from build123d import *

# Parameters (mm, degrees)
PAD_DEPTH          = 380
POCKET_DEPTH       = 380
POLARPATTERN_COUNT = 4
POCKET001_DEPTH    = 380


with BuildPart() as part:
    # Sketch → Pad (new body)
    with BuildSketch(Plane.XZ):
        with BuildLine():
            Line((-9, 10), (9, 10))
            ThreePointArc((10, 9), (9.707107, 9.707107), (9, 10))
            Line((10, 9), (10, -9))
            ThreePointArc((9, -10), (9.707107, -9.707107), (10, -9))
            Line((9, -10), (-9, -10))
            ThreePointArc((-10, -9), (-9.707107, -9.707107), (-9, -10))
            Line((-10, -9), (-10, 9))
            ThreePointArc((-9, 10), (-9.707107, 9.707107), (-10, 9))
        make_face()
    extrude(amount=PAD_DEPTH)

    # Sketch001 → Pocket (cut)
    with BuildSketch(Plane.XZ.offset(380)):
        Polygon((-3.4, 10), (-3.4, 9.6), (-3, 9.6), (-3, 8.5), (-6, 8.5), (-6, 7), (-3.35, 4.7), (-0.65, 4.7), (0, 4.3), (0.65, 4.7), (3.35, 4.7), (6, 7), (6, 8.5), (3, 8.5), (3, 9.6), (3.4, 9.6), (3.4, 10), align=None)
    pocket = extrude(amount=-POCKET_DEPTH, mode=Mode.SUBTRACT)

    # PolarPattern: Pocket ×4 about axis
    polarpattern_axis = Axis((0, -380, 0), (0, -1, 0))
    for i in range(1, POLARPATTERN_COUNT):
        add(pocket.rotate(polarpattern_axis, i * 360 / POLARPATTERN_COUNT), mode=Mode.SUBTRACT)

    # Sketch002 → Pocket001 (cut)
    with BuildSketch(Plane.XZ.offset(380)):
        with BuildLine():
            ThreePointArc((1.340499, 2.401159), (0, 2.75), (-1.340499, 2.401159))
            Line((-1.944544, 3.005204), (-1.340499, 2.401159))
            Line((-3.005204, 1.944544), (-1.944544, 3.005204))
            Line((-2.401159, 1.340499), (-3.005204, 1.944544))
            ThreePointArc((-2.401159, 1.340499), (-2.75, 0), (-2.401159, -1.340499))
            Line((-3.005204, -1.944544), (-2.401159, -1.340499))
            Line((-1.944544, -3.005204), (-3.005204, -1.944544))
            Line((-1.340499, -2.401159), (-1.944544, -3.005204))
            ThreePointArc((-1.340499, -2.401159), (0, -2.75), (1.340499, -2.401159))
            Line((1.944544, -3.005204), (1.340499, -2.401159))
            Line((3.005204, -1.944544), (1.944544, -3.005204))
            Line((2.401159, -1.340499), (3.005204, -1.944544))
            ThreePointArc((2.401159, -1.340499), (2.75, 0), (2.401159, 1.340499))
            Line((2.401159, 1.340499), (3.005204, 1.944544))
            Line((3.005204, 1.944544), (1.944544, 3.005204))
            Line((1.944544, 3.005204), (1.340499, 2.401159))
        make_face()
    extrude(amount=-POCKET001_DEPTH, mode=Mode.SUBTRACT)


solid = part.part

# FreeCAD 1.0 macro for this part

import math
import FreeCAD as App
import Part
import Sketcher

V = App.Vector

doc = App.newDocument("Part")
body = doc.addObject("PartDesign::Body", "Body")

sketch1 = doc.addObject("Sketcher::SketchObject", "Sketch")
body.addObject(sketch1)
sketch1.AttachmentSupport = (doc.XZ_Plane, [""])
sketch1.MapMode = "FlatFace"
sketch1.addGeometry([
    Part.LineSegment(V(9, 10, 0), V(-9, 10, 0)),
    Part.ArcOfCircle(Part.Circle(V(-9.000001, 9.000001, 0), V(0, 0, 1), 0.999999), math.radians(89.999957), math.radians(180.000043)),
    Part.LineSegment(V(-10, 9, 0), V(-10, -9, 0)),
    Part.ArcOfCircle(Part.Circle(V(-9.000001, -9.000001, 0), V(0, 0, 1), 0.999999), math.radians(179.999957), math.radians(270.000043)),
    Part.LineSegment(V(-9, -10, 0), V(9, -10, 0)),
    Part.ArcOfCircle(Part.Circle(V(9.000001, -9.000001, 0), V(0, 0, 1), 0.999999), math.radians(-90.000043), math.radians(0.000043)),
    Part.LineSegment(V(10, -9, 0), V(10, 9, 0)),
    Part.ArcOfCircle(Part.Circle(V(9.000001, 9.000001, 0), V(0, 0, 1), 0.999999), math.radians(-0.000043), math.radians(90.000043)),
], False)
sketch1.addConstraint([
    Sketcher.Constraint("Tangent", 0, 2, 1, 1),
    Sketcher.Constraint("Tangent", 1, 2, 2, 1),
    Sketcher.Constraint("Tangent", 2, 2, 3, 1),
    Sketcher.Constraint("Tangent", 3, 2, 4, 1),
    Sketcher.Constraint("Tangent", 4, 2, 5, 1),
    Sketcher.Constraint("Tangent", 5, 2, 6, 1),
    Sketcher.Constraint("Tangent", 6, 2, 7, 1),
    Sketcher.Constraint("Tangent", 7, 2, 0, 1),
    Sketcher.Constraint("Horizontal", 0),
    Sketcher.Constraint("Vertical", 2),
    Sketcher.Constraint("Horizontal", 4),
    Sketcher.Constraint("Vertical", 6),
    Sketcher.Constraint("Equal", 1, 3),
    Sketcher.Constraint("Equal", 3, 5),
    Sketcher.Constraint("Equal", 5, 7),
    Sketcher.Constraint("Symmetric", 1, 3, 5, 3, -1, 1),
    Sketcher.Constraint("Equal", 4, 2),
    Sketcher.Constraint("Radius", 1, 0.999999),
    Sketcher.Constraint("DistanceX", 0, 2, 0, 1, 18.0),
])
pad1 = doc.addObject("PartDesign::Pad", "Pad")
body.addObject(pad1)
pad1.Profile = sketch1
pad1.Length = 380

sketch2 = doc.addObject("Sketcher::SketchObject", "Sketch001")
body.addObject(sketch2)
sketch2.AttachmentSupport = (doc.XZ_Plane, [""])
sketch2.MapMode = "FlatFace"
sketch2.AttachmentOffset = App.Placement(V(0, 0, 380), App.Rotation())
sketch2.addGeometry([
    Part.LineSegment(V(-3.4, 10, 0), V(-3.4, 9.6, 0)),
    Part.LineSegment(V(-3.4, 9.6, 0), V(-3, 9.6, 0)),
    Part.LineSegment(V(-3, 9.6, 0), V(-3, 8.5, 0)),
    Part.LineSegment(V(-3, 8.5, 0), V(-6, 8.5, 0)),
    Part.LineSegment(V(-6, 8.5, 0), V(-6, 7, 0)),
    Part.LineSegment(V(-6, 7, 0), V(-3.35, 4.7, 0)),
    Part.LineSegment(V(-3.35, 4.7, 0), V(-0.65, 4.7, 0)),
    Part.LineSegment(V(-0.65, 4.7, 0), V(0, 4.3, 0)),
    Part.LineSegment(V(0, 4.3, 0), V(0.65, 4.7, 0)),
    Part.LineSegment(V(0.65, 4.7, 0), V(3.35, 4.7, 0)),
    Part.LineSegment(V(3.35, 4.7, 0), V(6, 7, 0)),
    Part.LineSegment(V(6, 7, 0), V(6, 8.5, 0)),
    Part.LineSegment(V(6, 8.5, 0), V(3, 8.5, 0)),
    Part.LineSegment(V(3, 8.5, 0), V(3, 9.6, 0)),
    Part.LineSegment(V(3, 9.6, 0), V(3.4, 9.6, 0)),
    Part.LineSegment(V(3.4, 9.6, 0), V(3.4, 10, 0)),
    Part.LineSegment(V(3.4, 10, 0), V(-3.4, 10, 0)),
], False)
sketch2.addConstraint([
    Sketcher.Constraint("Coincident", 0, 2, 1, 1),
    Sketcher.Constraint("Coincident", 1, 2, 2, 1),
    Sketcher.Constraint("Coincident", 2, 2, 3, 1),
    Sketcher.Constraint("Coincident", 3, 2, 4, 1),
    Sketcher.Constraint("Coincident", 4, 2, 5, 1),
    Sketcher.Constraint("Coincident", 5, 2, 6, 1),
    Sketcher.Constraint("Coincident", 6, 2, 7, 1),
    Sketcher.Constraint("Coincident", 7, 2, 8, 1),
    Sketcher.Constraint("Coincident", 8, 2, 9, 1),
    Sketcher.Constraint("Coincident", 9, 2, 10, 1),
    Sketcher.Constraint("Coincident", 10, 2, 11, 1),
    Sketcher.Constraint("Coincident", 11, 2, 12, 1),
    Sketcher.Constraint("Coincident", 12, 2, 13, 1),
    Sketcher.Constraint("Coincident", 13, 2, 14, 1),
    Sketcher.Constraint("Coincident", 14, 2, 15, 1),
    Sketcher.Constraint("Coincident", 15, 2, 16, 1),
    Sketcher.Constraint("Coincident", 16, 2, 0, 1),
    Sketcher.Constraint("Vertical", 0),
    Sketcher.Constraint("Horizontal", 1),
    Sketcher.Constraint("Vertical", 2),
    Sketcher.Constraint("Horizontal", 3),
    Sketcher.Constraint("Vertical", 4),
    Sketcher.Constraint("Horizontal", 6),
    Sketcher.Constraint("Horizontal", 9),
    Sketcher.Constraint("Vertical", 11),
    Sketcher.Constraint("Horizontal", 12),
    Sketcher.Constraint("Vertical", 13),
    Sketcher.Constraint("Horizontal", 14),
    Sketcher.Constraint("Vertical", 15),
    Sketcher.Constraint("Horizontal", 16),
    Sketcher.Constraint("Symmetric", 6, 2, 8, 2, -2),
    Sketcher.Constraint("Symmetric", 4, 2, 10, 2, -2),
    Sketcher.Constraint("Symmetric", 2, 2, 12, 2, -2),
    Sketcher.Constraint("Symmetric", 0, 2, 14, 2, -2),
    Sketcher.Constraint("PointOnObject", 7, 2, -2),
    Sketcher.Constraint("Equal", 6, 9),
    Sketcher.Constraint("Equal", 14, 0),
    Sketcher.Constraint("DistanceX", 3, 2, 3, 1, 3.0),
    Sketcher.Constraint("DistanceX", 1, 1, 1, 2, 0.4),
    Sketcher.Constraint("DistanceX", 6, 1, 6, 2, 2.7),
    Sketcher.Constraint("DistanceX", 16, 2, 16, 1, 6.8),
    Sketcher.Constraint("DistanceY", 2, 2, 2, 1, 1.1),
    Sketcher.Constraint("DistanceY", 4, 2, 4, 1, 1.5),
    Sketcher.Constraint("DistanceY", -1, 1, 4, 2, 7.0),
    Sketcher.Constraint("DistanceX", 5, 2, 8, 2, 4.0),
    Sketcher.Constraint("DistanceY", -1, 1, 5, 2, 4.7),
    Sketcher.Constraint("DistanceY", -1, 1, 7, 2, 4.3),
])
pocket1 = doc.addObject("PartDesign::Pocket", "Pocket")
body.addObject(pocket1)
pocket1.Profile = sketch2
pocket1.Length = 380
doc.recompute()

polarpattern = doc.addObject("PartDesign::PolarPattern", "PolarPattern")
body.addObject(polarpattern)
polarpattern.Originals = [pocket1]
polarpattern.Axis = (doc.Y_Axis, [""])
polarpattern.Angle = 360
polarpattern.Occurrences = 4
body.Tip = polarpattern

sketch3 = doc.addObject("Sketcher::SketchObject", "Sketch002")
body.addObject(sketch3)
sketch3.AttachmentSupport = (doc.XZ_Plane, [""])
sketch3.MapMode = "FlatFace"
sketch3.AttachmentOffset = App.Placement(V(0, 0, 380), App.Rotation())
sketch3.addGeometry([
    Part.ArcOfCircle(Part.Circle(V(0, -0.000003, 0), V(0, 0, 1), 2.750003), math.radians(60.826646), math.radians(119.173354)),
    Part.LineSegment(V(-1.340499, 2.401159, 0), V(-1.944544, 3.005204, 0)),
    Part.LineSegment(V(-1.944544, 3.005204, 0), V(-3.005204, 1.944544, 0)),
    Part.LineSegment(V(-3.005204, 1.944544, 0), V(-2.401159, 1.340499, 0)),
    Part.ArcOfCircle(Part.Circle(V(0.000003, 0, 0), V(0, 0, 1), 2.750003), math.radians(150.826646), math.radians(209.173354)),
    Part.LineSegment(V(-2.401159, -1.340499, 0), V(-3.005204, -1.944544, 0)),
    Part.LineSegment(V(-3.005204, -1.944544, 0), V(-1.944544, -3.005204, 0)),
    Part.LineSegment(V(-1.944544, -3.005204, 0), V(-1.340499, -2.401159, 0)),
    Part.ArcOfCircle(Part.Circle(V(0, 0.000003, 0), V(0, 0, 1), 2.750003), math.radians(-119.173354), math.radians(-60.826646)),
    Part.LineSegment(V(1.340499, -2.401159, 0), V(1.944544, -3.005204, 0)),
    Part.LineSegment(V(1.944544, -3.005204, 0), V(3.005204, -1.944544, 0)),
    Part.LineSegment(V(3.005204, -1.944544, 0), V(2.401159, -1.340499, 0)),
    Part.ArcOfCircle(Part.Circle(V(-0.000003, 0, 0), V(0, 0, 1), 2.750003), math.radians(-29.173354), math.radians(29.173354)),
    Part.LineSegment(V(2.401159, 1.340499, 0), V(3.005204, 1.944544, 0)),
    Part.LineSegment(V(3.005204, 1.944544, 0), V(1.944544, 3.005204, 0)),
    Part.LineSegment(V(1.944544, 3.005204, 0), V(1.340499, 2.401159, 0)),
], False)
sketch3.addConstraint([
    Sketcher.Constraint("Coincident", 0, 2, 1, 1),
    Sketcher.Constraint("Coincident", 1, 2, 2, 1),
    Sketcher.Constraint("Coincident", 2, 2, 3, 1),
    Sketcher.Constraint("Coincident", 3, 2, 4, 1),
    Sketcher.Constraint("Coincident", 4, 2, 5, 1),
    Sketcher.Constraint("Coincident", 5, 2, 6, 1),
    Sketcher.Constraint("Coincident", 6, 2, 7, 1),
    Sketcher.Constraint("Coincident", 7, 2, 8, 1),
    Sketcher.Constraint("Coincident", 8, 2, 9, 1),
    Sketcher.Constraint("Coincident", 9, 2, 10, 1),
    Sketcher.Constraint("Coincident", 10, 2, 11, 1),
    Sketcher.Constraint("Coincident", 11, 2, 12, 1),
    Sketcher.Constraint("Coincident", 12, 2, 13, 1),
    Sketcher.Constraint("Coincident", 13, 2, 14, 1),
    Sketcher.Constraint("Coincident", 14, 2, 15, 1),
    Sketcher.Constraint("Coincident", 15, 2, 0, 1),
    Sketcher.Constraint("Coincident", 0, 3, -1, 1),
    Sketcher.Constraint("Coincident", 4, 3, -1, 1),
    Sketcher.Constraint("Coincident", 8, 3, -1, 1),
    Sketcher.Constraint("Coincident", 12, 3, -1, 1),
    Sketcher.Constraint("Equal", 0, 4),
    Sketcher.Constraint("Equal", 4, 8),
    Sketcher.Constraint("Equal", 8, 12),
    Sketcher.Constraint("Symmetric", 1, 2, 9, 2, -1, 1),
    Sketcher.Constraint("Symmetric", 2, 2, 10, 2, -1, 1),
    Sketcher.Constraint("Symmetric", 5, 2, 13, 2, -1, 1),
    Sketcher.Constraint("Symmetric", 6, 2, 14, 2, -1, 1),
    Sketcher.Constraint("Symmetric", 6, 2, 9, 2, -2),
    Sketcher.Constraint("Symmetric", 5, 2, 10, 2, -2),
    Sketcher.Constraint("Perpendicular", 1, 2),
    Sketcher.Constraint("Perpendicular", 2, 3),
    Sketcher.Constraint("Perpendicular", 3, 5),
    Sketcher.Constraint("Perpendicular", 5, 6),
    Sketcher.Constraint("Perpendicular", 6, 7),
    Sketcher.Constraint("Perpendicular", 7, 9),
    Sketcher.Constraint("Perpendicular", 10, 11),
    Sketcher.Constraint("Perpendicular", 11, 13),
    Sketcher.Constraint("Perpendicular", 14, 15),
    Sketcher.Constraint("Equal", 1, 3),
    Sketcher.Constraint("Distance", 2, 1.5),
    Sketcher.Constraint("Radius", 0, 2.750003),
    Sketcher.Constraint("DistanceY", 8, 3, 1, 2, 3.005201),
])
pocket2 = doc.addObject("PartDesign::Pocket", "Pocket001")
body.addObject(pocket2)
pocket2.Profile = sketch3
pocket2.Length = 380

doc.recompute()
